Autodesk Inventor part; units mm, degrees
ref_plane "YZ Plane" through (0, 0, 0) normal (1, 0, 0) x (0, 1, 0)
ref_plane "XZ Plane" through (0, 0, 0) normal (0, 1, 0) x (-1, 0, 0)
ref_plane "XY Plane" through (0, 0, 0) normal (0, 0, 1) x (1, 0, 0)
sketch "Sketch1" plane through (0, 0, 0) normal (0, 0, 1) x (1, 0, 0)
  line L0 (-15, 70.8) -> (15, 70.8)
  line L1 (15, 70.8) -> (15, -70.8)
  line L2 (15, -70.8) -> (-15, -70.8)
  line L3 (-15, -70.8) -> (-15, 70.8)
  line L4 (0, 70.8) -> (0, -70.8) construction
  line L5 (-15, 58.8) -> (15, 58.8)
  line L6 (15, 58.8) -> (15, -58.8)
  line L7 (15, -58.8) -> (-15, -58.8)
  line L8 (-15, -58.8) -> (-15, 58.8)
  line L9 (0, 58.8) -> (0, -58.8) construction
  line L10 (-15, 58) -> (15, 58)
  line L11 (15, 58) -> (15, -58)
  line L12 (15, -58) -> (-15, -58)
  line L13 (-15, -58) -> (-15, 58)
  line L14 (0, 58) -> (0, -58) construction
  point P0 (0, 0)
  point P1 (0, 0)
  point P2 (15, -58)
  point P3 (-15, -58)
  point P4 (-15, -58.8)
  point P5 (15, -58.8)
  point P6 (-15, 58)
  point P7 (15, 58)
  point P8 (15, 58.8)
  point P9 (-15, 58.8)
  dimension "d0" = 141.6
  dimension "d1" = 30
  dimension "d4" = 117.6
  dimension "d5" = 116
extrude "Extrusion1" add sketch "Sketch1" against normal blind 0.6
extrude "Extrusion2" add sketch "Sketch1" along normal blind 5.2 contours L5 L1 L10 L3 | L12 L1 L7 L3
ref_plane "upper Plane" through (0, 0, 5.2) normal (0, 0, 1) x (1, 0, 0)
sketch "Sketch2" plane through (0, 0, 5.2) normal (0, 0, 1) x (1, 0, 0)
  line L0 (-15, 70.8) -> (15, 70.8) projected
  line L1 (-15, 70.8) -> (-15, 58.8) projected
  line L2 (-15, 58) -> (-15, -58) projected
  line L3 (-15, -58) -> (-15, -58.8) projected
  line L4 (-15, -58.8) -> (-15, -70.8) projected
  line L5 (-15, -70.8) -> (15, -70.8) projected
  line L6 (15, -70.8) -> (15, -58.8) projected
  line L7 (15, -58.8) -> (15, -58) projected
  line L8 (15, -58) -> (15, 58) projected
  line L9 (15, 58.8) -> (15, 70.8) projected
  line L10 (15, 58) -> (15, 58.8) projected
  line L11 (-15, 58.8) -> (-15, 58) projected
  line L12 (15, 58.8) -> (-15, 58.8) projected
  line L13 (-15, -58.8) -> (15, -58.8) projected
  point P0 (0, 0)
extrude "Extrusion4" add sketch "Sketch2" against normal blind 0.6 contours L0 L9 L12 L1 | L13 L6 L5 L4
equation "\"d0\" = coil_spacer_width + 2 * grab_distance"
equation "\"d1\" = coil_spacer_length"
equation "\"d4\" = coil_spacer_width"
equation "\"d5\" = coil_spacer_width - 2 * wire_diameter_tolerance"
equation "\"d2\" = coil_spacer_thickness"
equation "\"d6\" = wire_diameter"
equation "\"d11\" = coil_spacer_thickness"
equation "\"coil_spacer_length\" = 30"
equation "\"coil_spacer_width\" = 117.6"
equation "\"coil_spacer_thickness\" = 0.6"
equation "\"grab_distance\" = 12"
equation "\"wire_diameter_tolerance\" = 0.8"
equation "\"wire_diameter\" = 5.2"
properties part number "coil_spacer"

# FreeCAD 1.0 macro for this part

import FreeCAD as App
import Part
import Sketcher
from FreeCAD import Vector

doc = App.newDocument("Part")
body = doc.addObject("PartDesign::Body", "Body")

# Sketch on XY plane
sketch1 = doc.addObject("Sketcher::SketchObject", "Sketch")
body.addObject(sketch1)
sketch1.AttachmentSupport = (doc.XY_Plane, [""])
sketch1.MapMode = "FlatFace"
sketch1.addGeometry(Part.LineSegment(Vector(15, 71, 0), Vector(-15, 71, 0)), False)
sketch1.addGeometry(Part.LineSegment(Vector(-15, 71, 0), Vector(-15, -71, 0)), False)
sketch1.addGeometry(Part.LineSegment(Vector(-15, -71, 0), Vector(15, -71, 0)), False)
sketch1.addGeometry(Part.LineSegment(Vector(15, -71, 0), Vector(15, 71, 0)), False)
sketch1.addConstraint(Sketcher.Constraint("Coincident", 0, 2, 1, 1))
sketch1.addConstraint(Sketcher.Constraint("Coincident", 1, 2, 2, 1))
sketch1.addConstraint(Sketcher.Constraint("Coincident", 2, 2, 3, 1))
sketch1.addConstraint(Sketcher.Constraint("Coincident", 3, 2, 0, 1))
sketch1.addConstraint(Sketcher.Constraint("Horizontal", 0))
sketch1.addConstraint(Sketcher.Constraint("Vertical", 1))
sketch1.addConstraint(Sketcher.Constraint("Horizontal", 2))
sketch1.addConstraint(Sketcher.Constraint("Vertical", 3))
sketch1.addConstraint(Sketcher.Constraint("Symmetric", 0, 2, 2, 2, -1, 1))
sketch1.addConstraint(Sketcher.Constraint("DistanceX", 0, 2, 0, 1, 30.0))
sketch1.addConstraint(Sketcher.Constraint("DistanceY", 1, 2, 1, 1, 141.6))
pad1 = doc.addObject("PartDesign::Pad", "Pad")
body.addObject(pad1)
pad1.Profile = sketch1
pad1.Length = 0.6
pad1.Reversed = True

# Sketch on XY plane
sketch2 = doc.addObject("Sketcher::SketchObject", "Sketch001")
body.addObject(sketch2)
sketch2.AttachmentSupport = (doc.XY_Plane, [""])
sketch2.MapMode = "FlatFace"
sketch2.addGeometry(Part.LineSegment(Vector(15, 58.8, 0), Vector(-15, 58.8, 0)), False)
sketch2.addGeometry(Part.LineSegment(Vector(-15, 58.8, 0), Vector(-15, 58, 0)), False)
sketch2.addGeometry(Part.LineSegment(Vector(-15, 58, 0), Vector(15, 58, 0)), False)
sketch2.addGeometry(Part.LineSegment(Vector(15, 58, 0), Vector(15, 58.8, 0)), False)
sketch2.addGeometry(Part.LineSegment(Vector(15, -58, 0), Vector(-15, -58, 0)), False)
sketch2.addGeometry(Part.LineSegment(Vector(-15, -58, 0), Vector(-15, -58.8, 0)), False)
sketch2.addGeometry(Part.LineSegment(Vector(-15, -58.8, 0), Vector(15, -58.8, 0)), False)
sketch2.addGeometry(Part.LineSegment(Vector(15, -58.8, 0), Vector(15, -58, 0)), False)
sketch2.addConstraint(Sketcher.Constraint("Coincident", 0, 2, 1, 1))
sketch2.addConstraint(Sketcher.Constraint("Coincident", 1, 2, 2, 1))
sketch2.addConstraint(Sketcher.Constraint("Coincident", 2, 2, 3, 1))
sketch2.addConstraint(Sketcher.Constraint("Coincident", 3, 2, 0, 1))
sketch2.addConstraint(Sketcher.Constraint("Coincident", 4, 2, 5, 1))
sketch2.addConstraint(Sketcher.Constraint("Coincident", 5, 2, 6, 1))
sketch2.addConstraint(Sketcher.Constraint("Coincident", 6, 2, 7, 1))
sketch2.addConstraint(Sketcher.Constraint("Coincident", 7, 2, 4, 1))
sketch2.addConstraint(Sketcher.Constraint("Horizontal", 0))
sketch2.addConstraint(Sketcher.Constraint("Vertical", 1))
sketch2.addConstraint(Sketcher.Constraint("Horizontal", 2))
sketch2.addConstraint(Sketcher.Constraint("Vertical", 3))
sketch2.addConstraint(Sketcher.Constraint("Horizontal", 4))
sketch2.addConstraint(Sketcher.Constraint("Vertical", 5))
sketch2.addConstraint(Sketcher.Constraint("Horizontal", 6))
sketch2.addConstraint(Sketcher.Constraint("Vertical", 7))
sketch2.addConstraint(Sketcher.Constraint("Symmetric", 2, 2, 4, 2, -1, 1))
sketch2.addConstraint(Sketcher.Constraint("Symmetric", 0, 2, 6, 2, -1, 1))
sketch2.addConstraint(Sketcher.Constraint("Vertical", 1, 2, 4, 2))
sketch2.addConstraint(Sketcher.Constraint("DistanceX", 0, 2, 0, 1, 30.0))
sketch2.addConstraint(Sketcher.Constraint("DistanceY", 4, 2, 1, 2, 116.0))
sketch2.addConstraint(Sketcher.Constraint("DistanceY", 5, 2, 0, 2, 117.6))
pad2 = doc.addObject("PartDesign::Pad", "Pad001")
body.addObject(pad2)
pad2.Profile = sketch2
pad2.Length = 5.2

# Sketch on XY plane
sketch3 = doc.addObject("Sketcher::SketchObject", "Sketch002")
body.addObject(sketch3)
sketch3.AttachmentSupport = (doc.XY_Plane, [""])
sketch3.MapMode = "FlatFace"
sketch3.AttachmentOffset = App.Placement(Vector(0, 0, 5.2), App.Rotation())
sketch3.addGeometry(Part.LineSegment(Vector(15, 71, 0), Vector(-15, 71, 0)), False)
sketch3.addGeometry(Part.LineSegment(Vector(-15, 71, 0), Vector(-15, 59, 0)), False)
sketch3.addGeometry(Part.LineSegment(Vector(-15, 59, 0), Vector(15, 59, 0)), False)
sketch3.addGeometry(Part.LineSegment(Vector(15, 59, 0), Vector(15, 71, 0)), False)
sketch3.addGeometry(Part.LineSegment(Vector(15, -59, 0), Vector(-15, -59, 0)), False)
sketch3.addGeometry(Part.LineSegment(Vector(-15, -59, 0), Vector(-15, -71, 0)), False)
sketch3.addGeometry(Part.LineSegment(Vector(-15, -71, 0), Vector(15, -71, 0)), False)
sketch3.addGeometry(Part.LineSegment(Vector(15, -71, 0), Vector(15, -59, 0)), False)
sketch3.addConstraint(Sketcher.Constraint("Coincident", 0, 2, 1, 1))
sketch3.addConstraint(Sketcher.Constraint("Coincident", 1, 2, 2, 1))
sketch3.addConstraint(Sketcher.Constraint("Coincident", 2, 2, 3, 1))
sketch3.addConstraint(Sketcher.Constraint("Coincident", 3, 2, 0, 1))
sketch3.addConstraint(Sketcher.Constraint("Coincident", 4, 2, 5, 1))
sketch3.addConstraint(Sketcher.Constraint("Coincident", 5, 2, 6, 1))
sketch3.addConstraint(Sketcher.Constraint("Coincident", 6, 2, 7, 1))
sketch3.addConstraint(Sketcher.Constraint("Coincident", 7, 2, 4, 1))
sketch3.addConstraint(Sketcher.Constraint("Horizontal", 0))
sketch3.addConstraint(Sketcher.Constraint("Vertical", 1))
sketch3.addConstraint(Sketcher.Constraint("Horizontal", 2))
sketch3.addConstraint(Sketcher.Constraint("Vertical", 3))
sketch3.addConstraint(Sketcher.Constraint("Horizontal", 4))
sketch3.addConstraint(Sketcher.Constraint("Vertical", 5))
sketch3.addConstraint(Sketcher.Constraint("Horizontal", 6))
sketch3.addConstraint(Sketcher.Constraint("Vertical", 7))
sketch3.addConstraint(Sketcher.Constraint("Symmetric", 2, 2, 4, 2, -1, 1))
sketch3.addConstraint(Sketcher.Constraint("Symmetric", 0, 2, 6, 2, -1, 1))
sketch3.addConstraint(Sketcher.Constraint("Vertical", 1, 2, 4, 2))
sketch3.addConstraint(Sketcher.Constraint("DistanceX", 0, 2, 0, 1, 30.0))
sketch3.addConstraint(Sketcher.Constraint("DistanceY", 1, 2, 1, 1, 12.0))
sketch3.addConstraint(Sketcher.Constraint("DistanceY", -1, 1, 0, 2, 70.8))
pad3 = doc.addObject("PartDesign::Pad", "Pad002")
body.addObject(pad3)
pad3.Profile = sketch3
pad3.Length = 0.6
pad3.Reversed = True

doc.recompute()
